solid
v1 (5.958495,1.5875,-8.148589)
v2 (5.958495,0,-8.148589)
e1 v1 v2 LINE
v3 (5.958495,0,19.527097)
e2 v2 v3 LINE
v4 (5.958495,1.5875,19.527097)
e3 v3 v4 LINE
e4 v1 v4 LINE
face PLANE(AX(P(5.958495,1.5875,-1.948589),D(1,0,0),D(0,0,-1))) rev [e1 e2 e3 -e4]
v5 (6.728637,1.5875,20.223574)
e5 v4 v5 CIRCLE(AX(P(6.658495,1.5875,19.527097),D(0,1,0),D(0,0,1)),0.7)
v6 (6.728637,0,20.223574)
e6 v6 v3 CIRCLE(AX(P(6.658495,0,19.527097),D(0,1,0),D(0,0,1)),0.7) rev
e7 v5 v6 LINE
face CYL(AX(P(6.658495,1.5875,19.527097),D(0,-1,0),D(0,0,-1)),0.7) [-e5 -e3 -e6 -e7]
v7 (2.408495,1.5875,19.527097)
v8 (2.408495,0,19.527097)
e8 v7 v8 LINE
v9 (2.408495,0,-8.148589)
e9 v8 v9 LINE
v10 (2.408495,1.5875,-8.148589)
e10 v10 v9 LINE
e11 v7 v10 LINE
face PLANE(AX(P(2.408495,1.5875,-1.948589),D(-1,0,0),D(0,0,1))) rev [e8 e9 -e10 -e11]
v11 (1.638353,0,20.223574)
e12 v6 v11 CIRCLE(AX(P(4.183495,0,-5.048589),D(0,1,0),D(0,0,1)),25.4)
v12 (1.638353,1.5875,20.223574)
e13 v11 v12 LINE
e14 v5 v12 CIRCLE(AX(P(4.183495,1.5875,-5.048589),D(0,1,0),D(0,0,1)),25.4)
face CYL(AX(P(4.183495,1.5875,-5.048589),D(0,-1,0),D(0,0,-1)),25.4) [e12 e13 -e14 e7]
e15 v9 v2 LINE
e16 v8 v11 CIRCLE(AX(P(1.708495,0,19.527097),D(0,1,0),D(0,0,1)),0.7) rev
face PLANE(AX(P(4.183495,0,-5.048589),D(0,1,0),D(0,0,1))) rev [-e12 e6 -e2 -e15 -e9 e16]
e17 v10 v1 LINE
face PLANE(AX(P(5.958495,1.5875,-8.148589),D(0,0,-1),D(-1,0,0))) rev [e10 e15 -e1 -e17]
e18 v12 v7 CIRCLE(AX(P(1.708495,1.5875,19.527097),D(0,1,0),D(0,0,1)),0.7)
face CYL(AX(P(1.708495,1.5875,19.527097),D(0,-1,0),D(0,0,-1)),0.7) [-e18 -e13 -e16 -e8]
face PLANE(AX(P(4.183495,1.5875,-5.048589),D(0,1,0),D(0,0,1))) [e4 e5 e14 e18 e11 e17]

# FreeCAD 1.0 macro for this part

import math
import FreeCAD as App
import Part
import Sketcher
from FreeCAD import Vector
Q = App.Units.Quantity


def edges_at(feature, points):
    """Names of the edges that pass closest to the given points."""
    edges = feature.Shape.Edges
    near = lambda p: min(range(len(edges)), key=lambda i: edges[i].distToShape(Part.Vertex(*p))[0])
    return sorted({f"Edge{near(p) + 1}" for p in points})

doc = App.newDocument("Part")
body = doc.addObject("PartDesign::Body", "Body")

# Sketch on XZ plane
sketch1 = body.newObject("Sketcher::SketchObject", "Sketch")
sketch1.AttachmentSupport = (doc.getObject("XZ_Plane"), [""])
sketch1.MapMode = "FlatFace"
sketch1.addGeometry([
    Part.ArcOfCircle(Part.Circle(Vector(4.2, -5, 0), Vector(0, 0, 1), 25.4), math.radians(94), math.radians(446)),
    Part.LineSegment(Vector(2.4, 20.3, 0), Vector(2.4, -8.1, 0)),
    Part.LineSegment(Vector(2.4, -8.1, 0), Vector(6, -8.1, 0)),
    Part.LineSegment(Vector(6, -8.1, 0), Vector(6, 20.3, 0)),
], False)
sketch1.addConstraint([
    Sketcher.Constraint("Coincident", 0, 1, 1, 1),
    Sketcher.Constraint("Coincident", 1, 2, 2, 1),
    Sketcher.Constraint("Coincident", 2, 2, 3, 1),
    Sketcher.Constraint("Coincident", 3, 2, 0, 2),
    Sketcher.Constraint("Vertical", 1),
    Sketcher.Constraint("Horizontal", 2),
    Sketcher.Constraint("Vertical", 3),
    Sketcher.Constraint("Horizontal", 0, 1, 3, 2),
    Sketcher.Constraint("Radius", 0, Q("1 in")),
    Sketcher.Constraint("DistanceX", 2, 1, 2, 2, Q("3.55 mm")),
    Sketcher.Constraint("DistanceY", 1, 2, 0, 3, Q("3.1 mm")),
    Sketcher.Constraint("DistanceY", 0, 3, -1, 1, Q("5.048589 mm")),
    Sketcher.Constraint("DistanceX", -1, 1, 0, 3, Q("4.183495 mm")),
])
pad1 = body.newObject("PartDesign::Pad", "Pad")
pad1.Profile = sketch1
pad1.Length = Q("0.0625 in")
pad1.Reversed = True
doc.recompute()

fillet = body.newObject("PartDesign::Fillet", "Fillet")
fillet.Base = (pad1, edges_at(pad1, [(2.408, 0.794, 20.289), (5.958, 0.794, 20.289)]))
fillet.Radius = 0.7

doc.recompute()
